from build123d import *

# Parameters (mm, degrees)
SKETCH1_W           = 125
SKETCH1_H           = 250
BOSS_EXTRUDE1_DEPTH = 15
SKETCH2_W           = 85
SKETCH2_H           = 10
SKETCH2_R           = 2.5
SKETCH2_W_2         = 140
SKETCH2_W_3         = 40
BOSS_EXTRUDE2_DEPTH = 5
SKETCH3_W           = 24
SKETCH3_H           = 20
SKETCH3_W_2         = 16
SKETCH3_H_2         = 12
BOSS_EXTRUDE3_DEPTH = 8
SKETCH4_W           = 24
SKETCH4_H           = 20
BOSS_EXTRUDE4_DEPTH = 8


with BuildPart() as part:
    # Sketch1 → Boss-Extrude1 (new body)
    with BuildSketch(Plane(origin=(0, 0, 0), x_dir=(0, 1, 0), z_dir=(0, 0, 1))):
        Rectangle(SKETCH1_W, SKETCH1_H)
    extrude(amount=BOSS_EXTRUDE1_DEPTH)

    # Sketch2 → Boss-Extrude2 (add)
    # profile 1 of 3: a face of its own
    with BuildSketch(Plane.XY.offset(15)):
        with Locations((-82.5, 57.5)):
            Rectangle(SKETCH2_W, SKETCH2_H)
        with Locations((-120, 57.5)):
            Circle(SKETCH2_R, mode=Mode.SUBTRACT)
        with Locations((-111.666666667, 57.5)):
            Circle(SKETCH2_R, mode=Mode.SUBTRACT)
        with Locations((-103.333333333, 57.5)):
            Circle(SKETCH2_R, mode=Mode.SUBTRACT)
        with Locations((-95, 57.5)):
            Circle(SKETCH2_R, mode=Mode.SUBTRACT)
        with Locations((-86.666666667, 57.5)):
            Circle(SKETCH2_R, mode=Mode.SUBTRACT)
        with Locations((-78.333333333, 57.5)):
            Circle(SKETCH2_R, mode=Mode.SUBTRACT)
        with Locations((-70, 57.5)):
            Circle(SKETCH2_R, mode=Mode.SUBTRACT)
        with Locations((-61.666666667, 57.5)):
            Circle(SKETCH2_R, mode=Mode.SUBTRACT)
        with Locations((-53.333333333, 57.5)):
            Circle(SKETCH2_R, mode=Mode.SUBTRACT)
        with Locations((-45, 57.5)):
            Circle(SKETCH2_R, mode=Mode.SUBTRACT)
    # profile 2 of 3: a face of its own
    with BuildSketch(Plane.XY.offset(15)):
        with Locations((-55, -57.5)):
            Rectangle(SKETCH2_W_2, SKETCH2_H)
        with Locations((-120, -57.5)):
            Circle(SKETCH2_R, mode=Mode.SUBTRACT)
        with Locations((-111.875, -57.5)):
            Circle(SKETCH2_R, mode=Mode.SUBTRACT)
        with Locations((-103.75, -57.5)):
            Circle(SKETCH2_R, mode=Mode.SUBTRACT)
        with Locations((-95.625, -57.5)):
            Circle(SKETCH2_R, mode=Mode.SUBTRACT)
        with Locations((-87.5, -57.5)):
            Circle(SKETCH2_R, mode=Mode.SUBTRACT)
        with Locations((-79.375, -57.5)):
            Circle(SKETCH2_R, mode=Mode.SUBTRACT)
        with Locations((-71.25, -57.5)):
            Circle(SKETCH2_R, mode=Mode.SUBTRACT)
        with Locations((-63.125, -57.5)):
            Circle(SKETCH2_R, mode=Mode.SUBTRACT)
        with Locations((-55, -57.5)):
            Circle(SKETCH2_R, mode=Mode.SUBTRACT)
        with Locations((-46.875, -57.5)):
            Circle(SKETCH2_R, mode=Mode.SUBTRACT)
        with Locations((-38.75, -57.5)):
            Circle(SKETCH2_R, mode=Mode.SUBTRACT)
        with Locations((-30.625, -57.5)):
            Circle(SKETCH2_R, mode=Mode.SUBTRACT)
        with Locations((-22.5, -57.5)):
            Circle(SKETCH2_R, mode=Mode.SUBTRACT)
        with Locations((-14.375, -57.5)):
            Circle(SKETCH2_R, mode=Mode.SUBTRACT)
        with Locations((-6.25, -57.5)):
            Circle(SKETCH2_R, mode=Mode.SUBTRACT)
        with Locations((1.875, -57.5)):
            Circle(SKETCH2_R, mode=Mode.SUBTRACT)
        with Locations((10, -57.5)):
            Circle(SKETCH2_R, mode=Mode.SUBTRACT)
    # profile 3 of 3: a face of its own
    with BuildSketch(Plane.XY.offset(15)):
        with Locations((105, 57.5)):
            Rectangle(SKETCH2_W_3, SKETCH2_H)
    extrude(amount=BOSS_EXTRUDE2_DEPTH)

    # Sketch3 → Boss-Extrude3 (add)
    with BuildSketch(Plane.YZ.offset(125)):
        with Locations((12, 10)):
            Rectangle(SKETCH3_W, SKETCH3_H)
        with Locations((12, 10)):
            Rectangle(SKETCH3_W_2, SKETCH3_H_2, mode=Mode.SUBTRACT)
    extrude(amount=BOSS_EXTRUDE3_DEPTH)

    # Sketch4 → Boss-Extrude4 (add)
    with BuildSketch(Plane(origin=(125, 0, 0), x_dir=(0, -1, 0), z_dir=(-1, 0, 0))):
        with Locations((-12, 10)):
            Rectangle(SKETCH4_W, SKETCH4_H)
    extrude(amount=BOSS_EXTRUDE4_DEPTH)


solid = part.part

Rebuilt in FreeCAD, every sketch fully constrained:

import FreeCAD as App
import Part
import Sketcher

V = App.Vector
Q = App.Units.Quantity


def add_polygon(sketch, points):
    """Adds a closed chain of lines whose ends are joined by coincident constraints."""
    first, n = sketch.GeometryCount, len(points)
    for a, b in zip(points, points[1:] + points[:1]):
        sketch.addGeometry(Part.LineSegment(App.Vector(*a, 0), App.Vector(*b, 0)), False)
    for i in range(n):
        sketch.addConstraint(Sketcher.Constraint("Coincident", first + i, 2, first + (i + 1) % n, 1))

doc = App.newDocument("Part")
body = doc.addObject("PartDesign::Body", "Body")

# Sketch on XY plane
sketch1 = body.newObject("Sketcher::SketchObject", "Sketch")
sketch1.AttachmentSupport = (doc.getObject("XY_Plane"), [""])
sketch1.MapMode = "FlatFace"
add_polygon(sketch1, [(-125, -62), (125, -62), (125, 62), (-125, 62)])  # lines 0-3
sketch1.addConstraint([
    Sketcher.Constraint("Horizontal", 0),
    Sketcher.Constraint("Vertical", 1),
    Sketcher.Constraint("Horizontal", 2),
    Sketcher.Constraint("Vertical", 3),
    Sketcher.Constraint("Symmetric", 0, 2, 2, 2, -1, 1),
    Sketcher.Constraint("DistanceX", 0, 1, 0, 2, Q("250 mm")),
    Sketcher.Constraint("DistanceY", 1, 1, 1, 2, Q("125 mm")),
])
pad1 = body.newObject("PartDesign::Pad", "Pad")
pad1.Profile = sketch1
pad1.Length = 15

# Sketch on XY plane
sketch2 = body.newObject("Sketcher::SketchObject", "Sketch001")
sketch2.AttachmentSupport = (doc.getObject("XY_Plane"), [""])
sketch2.MapMode = "FlatFace"
sketch2.AttachmentOffset = App.Placement(V(0, 0, 15), App.Rotation())
add_polygon(sketch2, [(-125, 62.5), (-125, 52.5), (-40, 52.5), (-40, 62.5)])  # lines 0-3
sketch2.addGeometry(Part.Circle(V(-120, 57.5, 0), V(0, 0, 1), 2.5), False)  # 4
sketch2.addGeometry(Part.Circle(V(-111.7, 57.5, 0), V(0, 0, 1), 2.5), False)  # 5
sketch2.addGeometry(Part.Circle(V(-103.3, 57.5, 0), V(0, 0, 1), 2.5), False)  # 6
sketch2.addGeometry(Part.Circle(V(-95, 57.5, 0), V(0, 0, 1), 2.5), False)  # 7
sketch2.addGeometry(Part.Circle(V(-86.7, 57.5, 0), V(0, 0, 1), 2.5), False)  # 8
sketch2.addGeometry(Part.Circle(V(-78.3, 57.5, 0), V(0, 0, 1), 2.5), False)  # 9
sketch2.addGeometry(Part.Circle(V(-70, 57.5, 0), V(0, 0, 1), 2.5), False)  # 10
sketch2.addGeometry(Part.Circle(V(-61.7, 57.5, 0), V(0, 0, 1), 2.5), False)  # 11
sketch2.addGeometry(Part.Circle(V(-53.3, 57.5, 0), V(0, 0, 1), 2.5), False)  # 12
sketch2.addGeometry(Part.Circle(V(-45, 57.5, 0), V(0, 0, 1), 2.5), False)  # 13
add_polygon(sketch2, [(-125, -52.5), (-125, -62.5), (15, -62.5), (15, -52.5)])  # lines 14-17
sketch2.addGeometry(Part.Circle(V(-120, -57.5, 0), V(0, 0, 1), 2.5), False)  # 18
sketch2.addGeometry(Part.Circle(V(-111.9, -57.5, 0), V(0, 0, 1), 2.5), False)  # 19
sketch2.addGeometry(Part.Circle(V(-103.8, -57.5, 0), V(0, 0, 1), 2.5), False)  # 20
sketch2.addGeometry(Part.Circle(V(-95.6, -57.5, 0), V(0, 0, 1), 2.5), False)  # 21
sketch2.addGeometry(Part.Circle(V(-87.5, -57.5, 0), V(0, 0, 1), 2.5), False)  # 22
sketch2.addGeometry(Part.Circle(V(-79.4, -57.5, 0), V(0, 0, 1), 2.5), False)  # 23
sketch2.addGeometry(Part.Circle(V(-71.2, -57.5, 0), V(0, 0, 1), 2.5), False)  # 24
sketch2.addGeometry(Part.Circle(V(-63.1, -57.5, 0), V(0, 0, 1), 2.5), False)  # 25
sketch2.addGeometry(Part.Circle(V(-55, -57.5, 0), V(0, 0, 1), 2.5), False)  # 26
sketch2.addGeometry(Part.Circle(V(-46.9, -57.5, 0), V(0, 0, 1), 2.5), False)  # 27
sketch2.addGeometry(Part.Circle(V(-38.8, -57.5, 0), V(0, 0, 1), 2.5), False)  # 28
sketch2.addGeometry(Part.Circle(V(-30.6, -57.5, 0), V(0, 0, 1), 2.5), False)  # 29
sketch2.addGeometry(Part.Circle(V(-22.5, -57.5, 0), V(0, 0, 1), 2.5), False)  # 30
sketch2.addGeometry(Part.Circle(V(-14.4, -57.5, 0), V(0, 0, 1), 2.5), False)  # 31
sketch2.addGeometry(Part.Circle(V(-6.2, -57.5, 0), V(0, 0, 1), 2.5), False)  # 32
sketch2.addGeometry(Part.Circle(V(1.9, -57.5, 0), V(0, 0, 1), 2.5), False)  # 33
sketch2.addGeometry(Part.Circle(V(10, -57.5, 0), V(0, 0, 1), 2.5), False)  # 34
add_polygon(sketch2, [(85, 62.5), (85, 52.5), (125, 52.5), (125, 62.5)])  # lines 35-38
sketch2.addConstraint([
    Sketcher.Constraint("Vertical", 0),
    Sketcher.Constraint("Horizontal", 1),
    Sketcher.Constraint("Vertical", 2),
    Sketcher.Constraint("Horizontal", 3),
    Sketcher.Constraint("Vertical", 14),
    Sketcher.Constraint("Horizontal", 15),
    Sketcher.Constraint("Vertical", 16),
    Sketcher.Constraint("Horizontal", 17),
    Sketcher.Constraint("Vertical", 35),
    Sketcher.Constraint("Horizontal", 36),
    Sketcher.Constraint("Vertical", 37),
    Sketcher.Constraint("Horizontal", 38),
    Sketcher.Constraint("Equal", 4, 5),
    Sketcher.Constraint("Equal", 5, 6),
    Sketcher.Constraint("Equal", 6, 7),
    Sketcher.Constraint("Equal", 7, 8),
    Sketcher.Constraint("Equal", 8, 9),
    Sketcher.Constraint("Equal", 9, 10),
    Sketcher.Constraint("Equal", 10, 11),
    Sketcher.Constraint("Equal", 11, 12),
    Sketcher.Constraint("Equal", 12, 13),
    Sketcher.Constraint("Equal", 13, 18),
    Sketcher.Constraint("Equal", 18, 19),
    Sketcher.Constraint("Equal", 19, 20),
    Sketcher.Constraint("Equal", 20, 21),
    Sketcher.Constraint("Equal", 21, 22),
    Sketcher.Constraint("Equal", 22, 23),
    Sketcher.Constraint("Equal", 23, 24),
    Sketcher.Constraint("Equal", 24, 25),
    Sketcher.Constraint("Equal", 25, 26),
    Sketcher.Constraint("Equal", 26, 27),
    Sketcher.Constraint("Equal", 27, 28),
    Sketcher.Constraint("Equal", 28, 29),
    Sketcher.Constraint("Equal", 29, 30),
    Sketcher.Constraint("Equal", 30, 31),
    Sketcher.Constraint("Equal", 31, 32),
    Sketcher.Constraint("Equal", 32, 33),
    Sketcher.Constraint("Equal", 33, 34),
    Sketcher.Constraint("Symmetric", 17, 2, 36, 2, -1, 1),
    Sketcher.Constraint("Symmetric", 0, 2, 36, 2, -2),
    Sketcher.Constraint("Symmetric", 4, 3, 18, 3, -1),
    Sketcher.Constraint("Horizontal", 4, 3, 5, 3),
    Sketcher.Constraint("Horizontal", 5, 3, 6, 3),
    Sketcher.Constraint("Horizontal", 6, 3, 7, 3),
    Sketcher.Constraint("Horizontal", 7, 3, 8, 3),
    Sketcher.Constraint("Horizontal", 8, 3, 9, 3),
    Sketcher.Constraint("Horizontal", 9, 3, 10, 3),
    Sketcher.Constraint("Horizontal", 10, 3, 11, 3),
    Sketcher.Constraint("Horizontal", 11, 3, 12, 3),
    Sketcher.Constraint("Horizontal", 12, 3, 13, 3),
    Sketcher.Constraint("Horizontal", 18, 3, 19, 3),
    Sketcher.Constraint("Horizontal", 19, 3, 20, 3),
    Sketcher.Constraint("Horizontal", 20, 3, 21, 3),
    Sketcher.Constraint("Horizontal", 21, 3, 22, 3),
    Sketcher.Constraint("Horizontal", 22, 3, 23, 3),
    Sketcher.Constraint("Horizontal", 23, 3, 24, 3),
    Sketcher.Constraint("Horizontal", 24, 3, 25, 3),
    Sketcher.Constraint("Horizontal", 25, 3, 26, 3),
    Sketcher.Constraint("Horizontal", 26, 3, 27, 3),
    Sketcher.Constraint("Horizontal", 27, 3, 28, 3),
    Sketcher.Constraint("Horizontal", 28, 3, 29, 3),
    Sketcher.Constraint("Horizontal", 29, 3, 30, 3),
    Sketcher.Constraint("Horizontal", 30, 3, 31, 3),
    Sketcher.Constraint("Horizontal", 31, 3, 32, 3),
    Sketcher.Constraint("Horizontal", 32, 3, 33, 3),
    Sketcher.Constraint("Horizontal", 33, 3, 34, 3),
    Sketcher.Constraint("Horizontal", 3, 2, 37, 2),
    Sketcher.Constraint("Equal", 2, 14),
    Sketcher.Constraint("Diameter", 4, Q("5 mm")),
    Sketcher.Constraint("DistanceX", 1, 1, 1, 2, Q("85 mm")),
    Sketcher.Constraint("DistanceX", 15, 1, 15, 2, Q("140 mm")),
    Sketcher.Constraint("DistanceX", 36, 1, 36, 2, Q("40 mm")),
    Sketcher.Constraint("DistanceY", 0, 2, 0, 1, Q("10 mm")),
    Sketcher.Constraint("DistanceX", 4, 3, -1, 1, Q("120 mm")),
    Sketcher.Constraint("DistanceX", 7, 3, -1, 1, Q("95 mm")),
    Sketcher.Constraint("DistanceX", 10, 3, -1, 1, Q("70 mm")),
    Sketcher.Constraint("DistanceX", 13, 3, -1, 1, Q("45 mm")),
    Sketcher.Constraint("DistanceX", 26, 3, -1, 1, Q("55 mm")),
    Sketcher.Constraint("DistanceX", -1, 1, 34, 3, Q("10 mm")),
    Sketcher.Constraint("DistanceX", 0, 2, -1, 1, Q("125 mm")),
    Sketcher.Constraint("DistanceX", 5, 3, 8, 3, Q("25 mm")),
    Sketcher.Constraint("DistanceX", 6, 3, 9, 3, Q("25 mm")),
    Sketcher.Constraint("DistanceX", 8, 3, 11, 3, Q("25 mm")),
    Sketcher.Constraint("DistanceX", 9, 3, 12, 3, Q("25 mm")),
    Sketcher.Constraint("DistanceY", 18, 3, 4, 3, Q("115 mm")),
    Sketcher.Constraint("DistanceY", 0, 2, 4, 3, Q("5 mm")),
    Sketcher.Constraint("DistanceX", 22, 3, -1, 1, Q("87.5 mm")),
    Sketcher.Constraint("DistanceX", 30, 3, -1, 1, Q("22.5 mm")),
    Sketcher.Constraint("DistanceX", 19, 3, 23, 3, Q("32.5 mm")),
    Sketcher.Constraint("DistanceX", 20, 3, 24, 3, Q("32.5 mm")),
    Sketcher.Constraint("DistanceX", 21, 3, 25, 3, Q("32.5 mm")),
    Sketcher.Constraint("DistanceX", 23, 3, 27, 3, Q("32.5 mm")),
    Sketcher.Constraint("DistanceX", 24, 3, 28, 3, Q("32.5 mm")),
    Sketcher.Constraint("DistanceX", 25, 3, 29, 3, Q("32.5 mm")),
    Sketcher.Constraint("DistanceX", 27, 3, 31, 3, Q("32.5 mm")),
    Sketcher.Constraint("DistanceX", 28, 3, 32, 3, Q("32.5 mm")),
    Sketcher.Constraint("DistanceX", 29, 3, 33, 3, Q("32.5 mm")),
    Sketcher.Constraint("DistanceX", 20, 3, -1, 1, Q("103.75 mm")),
    Sketcher.Constraint("DistanceX", 19, 3, 21, 3, Q("16.25 mm")),
    Sketcher.Constraint("DistanceX", 19, 3, -1, 1, Q("111.875 mm")),
    Sketcher.Constraint("DistanceX", 5, 3, -1, 1, Q("111.666667 mm")),
    Sketcher.Constraint("DistanceX", 6, 3, -1, 1, Q("103.333333 mm")),
])
pad2 = body.newObject("PartDesign::Pad", "Pad001")
pad2.Profile = sketch2
pad2.Length = 5

# Sketch on YZ plane
sketch3 = body.newObject("Sketcher::SketchObject", "Sketch002")
sketch3.AttachmentSupport = (doc.getObject("YZ_Plane"), [""])
sketch3.MapMode = "FlatFace"
sketch3.AttachmentOffset = App.Placement(V(0, 0, 125), App.Rotation())
add_polygon(sketch3, [(0, 20), (0, 0), (24, 0), (24, 20)])  # lines 0-3
add_polygon(sketch3, [(20, 4), (4, 4), (4, 16), (20, 16)])  # lines 4-7
sketch3.addConstraint([
    Sketcher.Constraint("Vertical", 0),
    Sketcher.Constraint("Horizontal", 1),
    Sketcher.Constraint("Vertical", 2),
    Sketcher.Constraint("Horizontal", 3),
    Sketcher.Constraint("Horizontal", 4),
    Sketcher.Constraint("Vertical", 5),
    Sketcher.Constraint("Horizontal", 6),
    Sketcher.Constraint("Vertical", 7),
    Sketcher.Constraint("Coincident", 0, 2, -1, 1),
    Sketcher.Constraint("DistanceX", 1, 1, 1, 2, Q("24 mm")),
    Sketcher.Constraint("DistanceX", 4, 2, 4, 1, Q("16 mm")),
    Sketcher.Constraint("DistanceY", 0, 2, 0, 1, Q("20 mm")),
    Sketcher.Constraint("DistanceY", 5, 1, 5, 2, Q("12 mm")),
    Sketcher.Constraint("DistanceX", -1, 1, 4, 2, Q("4 mm")),
    Sketcher.Constraint("DistanceY", -1, 1, 4, 2, Q("4 mm")),
])
pad3 = body.newObject("PartDesign::Pad", "Pad002")
pad3.Profile = sketch3
pad3.Length = 8

# Sketch on YZ plane
sketch4 = body.newObject("Sketcher::SketchObject", "Sketch003")
sketch4.AttachmentSupport = (doc.getObject("YZ_Plane"), [""])
sketch4.MapMode = "FlatFace"
sketch4.AttachmentOffset = App.Placement(V(0, 0, 125), App.Rotation())
add_polygon(sketch4, [(24, 20), (24, 0), (0, 0), (0, 20)])  # lines 0-3
sketch4.addConstraint([
    Sketcher.Constraint("Vertical", 0),
    Sketcher.Constraint("Horizontal", 1),
    Sketcher.Constraint("Vertical", 2),
    Sketcher.Constraint("Horizontal", 3),
    Sketcher.Constraint("Coincident", 1, 2, -1, 1),
    Sketcher.Constraint("DistanceX", 1, 2, 1, 1, Q("24 mm")),
    Sketcher.Constraint("DistanceY", 0, 2, 0, 1, Q("20 mm")),
])
pad4 = body.newObject("PartDesign::Pad", "Pad003")
pad4.Profile = sketch4
pad4.Length = 8
pad4.Reversed = True

doc.recompute()
